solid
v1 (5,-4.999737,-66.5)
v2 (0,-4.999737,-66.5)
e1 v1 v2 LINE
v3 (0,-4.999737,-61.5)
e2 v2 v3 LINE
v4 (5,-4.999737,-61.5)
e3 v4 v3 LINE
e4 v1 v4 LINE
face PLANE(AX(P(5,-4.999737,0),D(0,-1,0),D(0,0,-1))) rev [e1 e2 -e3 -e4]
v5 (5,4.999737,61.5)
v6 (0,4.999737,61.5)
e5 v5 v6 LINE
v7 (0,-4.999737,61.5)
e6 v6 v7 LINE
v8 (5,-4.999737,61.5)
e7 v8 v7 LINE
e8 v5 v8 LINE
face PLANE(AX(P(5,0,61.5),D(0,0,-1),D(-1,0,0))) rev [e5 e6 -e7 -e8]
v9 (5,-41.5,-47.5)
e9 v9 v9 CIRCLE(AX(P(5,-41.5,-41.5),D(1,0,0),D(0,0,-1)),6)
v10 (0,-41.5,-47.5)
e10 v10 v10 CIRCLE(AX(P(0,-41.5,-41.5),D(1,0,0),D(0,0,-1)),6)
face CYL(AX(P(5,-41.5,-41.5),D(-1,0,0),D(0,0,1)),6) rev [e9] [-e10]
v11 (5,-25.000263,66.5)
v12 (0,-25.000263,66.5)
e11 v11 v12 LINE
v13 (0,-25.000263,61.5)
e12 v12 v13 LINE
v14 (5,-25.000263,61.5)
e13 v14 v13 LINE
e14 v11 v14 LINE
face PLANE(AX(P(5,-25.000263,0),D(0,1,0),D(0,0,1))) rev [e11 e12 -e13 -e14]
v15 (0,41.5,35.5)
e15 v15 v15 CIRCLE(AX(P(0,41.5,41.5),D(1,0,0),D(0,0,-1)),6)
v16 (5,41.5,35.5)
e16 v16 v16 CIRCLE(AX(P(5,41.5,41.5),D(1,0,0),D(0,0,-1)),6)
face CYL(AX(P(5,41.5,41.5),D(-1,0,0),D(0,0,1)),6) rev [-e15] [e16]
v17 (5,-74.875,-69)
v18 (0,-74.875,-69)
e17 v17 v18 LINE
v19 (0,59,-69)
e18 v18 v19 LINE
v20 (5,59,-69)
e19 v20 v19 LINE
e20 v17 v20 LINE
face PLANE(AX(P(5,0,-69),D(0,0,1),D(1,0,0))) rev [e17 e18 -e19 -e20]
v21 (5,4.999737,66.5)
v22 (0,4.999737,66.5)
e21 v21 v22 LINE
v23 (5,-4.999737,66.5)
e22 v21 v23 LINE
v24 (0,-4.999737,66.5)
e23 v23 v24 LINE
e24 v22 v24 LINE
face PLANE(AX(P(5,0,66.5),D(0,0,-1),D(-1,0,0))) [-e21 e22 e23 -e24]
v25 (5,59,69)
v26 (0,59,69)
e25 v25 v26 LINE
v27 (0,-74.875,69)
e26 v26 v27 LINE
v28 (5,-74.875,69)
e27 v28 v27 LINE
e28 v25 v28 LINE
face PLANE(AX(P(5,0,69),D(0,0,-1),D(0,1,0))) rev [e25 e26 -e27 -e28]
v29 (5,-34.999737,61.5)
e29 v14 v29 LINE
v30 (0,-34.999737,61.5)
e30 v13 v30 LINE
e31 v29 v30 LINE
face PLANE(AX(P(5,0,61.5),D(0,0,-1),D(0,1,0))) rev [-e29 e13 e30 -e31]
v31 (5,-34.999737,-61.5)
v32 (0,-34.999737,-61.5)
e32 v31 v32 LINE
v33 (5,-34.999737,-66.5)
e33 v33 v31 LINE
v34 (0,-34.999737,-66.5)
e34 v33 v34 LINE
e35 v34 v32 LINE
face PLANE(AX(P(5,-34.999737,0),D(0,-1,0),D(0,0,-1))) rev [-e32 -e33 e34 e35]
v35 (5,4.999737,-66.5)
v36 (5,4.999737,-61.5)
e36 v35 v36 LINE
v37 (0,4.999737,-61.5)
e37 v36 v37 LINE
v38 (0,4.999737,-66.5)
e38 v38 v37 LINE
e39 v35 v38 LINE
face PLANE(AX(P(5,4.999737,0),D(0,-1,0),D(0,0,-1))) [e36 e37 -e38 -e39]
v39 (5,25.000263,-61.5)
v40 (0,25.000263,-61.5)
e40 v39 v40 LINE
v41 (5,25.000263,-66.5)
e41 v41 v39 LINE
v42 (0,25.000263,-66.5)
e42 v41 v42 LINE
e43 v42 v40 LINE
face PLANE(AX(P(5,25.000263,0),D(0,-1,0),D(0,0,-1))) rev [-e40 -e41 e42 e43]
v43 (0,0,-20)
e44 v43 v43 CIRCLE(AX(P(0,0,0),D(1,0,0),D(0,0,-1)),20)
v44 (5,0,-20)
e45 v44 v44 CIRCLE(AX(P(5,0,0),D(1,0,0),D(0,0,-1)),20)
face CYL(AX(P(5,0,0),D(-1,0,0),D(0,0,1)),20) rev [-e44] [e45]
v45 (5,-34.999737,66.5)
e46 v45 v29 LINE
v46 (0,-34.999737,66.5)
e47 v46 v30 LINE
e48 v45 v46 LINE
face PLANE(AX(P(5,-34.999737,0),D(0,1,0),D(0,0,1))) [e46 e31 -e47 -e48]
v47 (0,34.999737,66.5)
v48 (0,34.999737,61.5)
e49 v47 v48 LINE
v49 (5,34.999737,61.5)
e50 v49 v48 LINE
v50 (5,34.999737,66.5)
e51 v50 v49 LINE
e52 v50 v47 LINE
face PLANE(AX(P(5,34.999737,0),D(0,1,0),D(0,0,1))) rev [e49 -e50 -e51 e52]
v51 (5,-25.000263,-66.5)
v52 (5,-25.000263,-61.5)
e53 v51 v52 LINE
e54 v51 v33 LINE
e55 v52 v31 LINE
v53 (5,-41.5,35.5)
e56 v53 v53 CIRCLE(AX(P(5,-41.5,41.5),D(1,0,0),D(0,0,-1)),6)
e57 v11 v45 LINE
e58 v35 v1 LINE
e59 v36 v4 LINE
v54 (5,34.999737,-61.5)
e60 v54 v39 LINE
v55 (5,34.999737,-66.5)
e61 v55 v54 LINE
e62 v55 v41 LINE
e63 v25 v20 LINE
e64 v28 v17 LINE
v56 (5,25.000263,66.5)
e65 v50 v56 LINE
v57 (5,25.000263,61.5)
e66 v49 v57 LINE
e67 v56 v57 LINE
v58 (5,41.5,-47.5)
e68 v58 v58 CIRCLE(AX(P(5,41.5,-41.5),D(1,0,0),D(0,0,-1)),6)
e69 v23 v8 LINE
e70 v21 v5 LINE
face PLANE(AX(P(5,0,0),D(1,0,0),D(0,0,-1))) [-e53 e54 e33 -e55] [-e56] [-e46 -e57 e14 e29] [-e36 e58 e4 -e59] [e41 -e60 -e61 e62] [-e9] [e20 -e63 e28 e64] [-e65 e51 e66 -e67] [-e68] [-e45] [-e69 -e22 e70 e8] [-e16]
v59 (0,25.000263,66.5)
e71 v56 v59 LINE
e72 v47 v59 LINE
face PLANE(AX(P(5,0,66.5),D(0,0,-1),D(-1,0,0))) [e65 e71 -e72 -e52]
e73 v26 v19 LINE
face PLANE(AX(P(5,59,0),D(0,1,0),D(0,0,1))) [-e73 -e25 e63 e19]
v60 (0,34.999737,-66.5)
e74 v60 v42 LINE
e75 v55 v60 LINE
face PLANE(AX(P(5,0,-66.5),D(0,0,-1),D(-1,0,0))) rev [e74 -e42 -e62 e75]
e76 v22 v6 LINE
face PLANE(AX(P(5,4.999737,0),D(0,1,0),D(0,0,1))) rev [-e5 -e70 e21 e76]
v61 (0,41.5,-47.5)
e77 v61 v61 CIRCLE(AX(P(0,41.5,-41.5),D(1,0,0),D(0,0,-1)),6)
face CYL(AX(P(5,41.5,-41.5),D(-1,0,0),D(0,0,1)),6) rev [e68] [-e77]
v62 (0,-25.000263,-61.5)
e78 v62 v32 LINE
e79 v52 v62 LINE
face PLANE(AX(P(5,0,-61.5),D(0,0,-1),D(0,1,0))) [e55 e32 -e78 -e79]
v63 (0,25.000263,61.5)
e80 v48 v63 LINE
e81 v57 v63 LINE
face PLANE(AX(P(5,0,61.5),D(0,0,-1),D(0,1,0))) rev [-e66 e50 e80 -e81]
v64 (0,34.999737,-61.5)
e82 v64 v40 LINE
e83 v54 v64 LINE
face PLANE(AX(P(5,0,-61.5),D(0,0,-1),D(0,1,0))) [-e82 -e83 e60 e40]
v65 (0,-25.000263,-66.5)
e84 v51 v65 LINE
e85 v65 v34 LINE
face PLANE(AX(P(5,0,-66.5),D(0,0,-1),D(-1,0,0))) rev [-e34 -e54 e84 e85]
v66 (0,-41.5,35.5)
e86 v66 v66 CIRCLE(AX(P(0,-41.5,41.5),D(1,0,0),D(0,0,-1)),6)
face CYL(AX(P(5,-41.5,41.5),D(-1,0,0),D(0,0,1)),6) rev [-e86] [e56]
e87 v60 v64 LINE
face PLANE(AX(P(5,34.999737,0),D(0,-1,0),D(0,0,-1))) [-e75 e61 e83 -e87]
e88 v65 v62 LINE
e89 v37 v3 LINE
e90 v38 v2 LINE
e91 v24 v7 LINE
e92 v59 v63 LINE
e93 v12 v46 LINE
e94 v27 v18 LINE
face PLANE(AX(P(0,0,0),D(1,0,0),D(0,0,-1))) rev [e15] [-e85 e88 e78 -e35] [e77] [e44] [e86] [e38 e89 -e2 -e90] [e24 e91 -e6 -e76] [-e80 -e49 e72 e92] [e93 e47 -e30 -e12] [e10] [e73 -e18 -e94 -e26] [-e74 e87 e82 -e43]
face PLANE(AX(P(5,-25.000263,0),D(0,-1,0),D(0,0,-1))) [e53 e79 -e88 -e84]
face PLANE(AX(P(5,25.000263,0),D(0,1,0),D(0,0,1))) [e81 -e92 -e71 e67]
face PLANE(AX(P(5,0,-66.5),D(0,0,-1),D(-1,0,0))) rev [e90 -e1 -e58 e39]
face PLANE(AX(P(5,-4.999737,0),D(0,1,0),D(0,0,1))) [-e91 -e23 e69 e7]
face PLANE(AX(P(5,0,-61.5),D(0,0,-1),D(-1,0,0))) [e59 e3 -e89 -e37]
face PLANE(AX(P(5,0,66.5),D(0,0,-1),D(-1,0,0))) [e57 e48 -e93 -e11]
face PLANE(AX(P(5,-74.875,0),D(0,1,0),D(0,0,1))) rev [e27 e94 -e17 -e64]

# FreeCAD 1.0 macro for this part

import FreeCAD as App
import Part
import Sketcher

V = App.Vector
Q = App.Units.Quantity


def add_polygon(sketch, points):
    """Adds a closed chain of lines whose ends are joined by coincident constraints."""
    first, n = sketch.GeometryCount, len(points)
    for a, b in zip(points, points[1:] + points[:1]):
        sketch.addGeometry(Part.LineSegment(App.Vector(*a, 0), App.Vector(*b, 0)), False)
    for i in range(n):
        sketch.addConstraint(Sketcher.Constraint("Coincident", first + i, 2, first + (i + 1) % n, 1))

doc = App.newDocument("Part")
body = doc.addObject("PartDesign::Body", "Body")

# Sketch on YZ plane
sketch1 = body.newObject("Sketcher::SketchObject", "Sketch")
sketch1.AttachmentSupport = (doc.getObject("YZ_Plane"), [""])
sketch1.MapMode = "FlatFace"
add_polygon(sketch1, [(59, -69), (59, 69), (-75, 69), (-75, -69)])  # lines 0-3
sketch1.addGeometry(Part.Circle(V(-42, -42, 0), V(0, 0, 1), 6), False)  # 4
add_polygon(sketch1, [(-35, -62), (-25, -62), (-25, -66), (-35, -66)])  # lines 5-8
sketch1.addGeometry(Part.Circle(V(-42, 42, 0), V(0, 0, 1), 6), False)  # 9
add_polygon(sketch1, [(-35, 66), (-25, 66), (-25, 62), (-35, 62)])  # lines 10-13
add_polygon(sketch1, [(-5, -62), (5, -62), (5, -66), (-5, -66)])  # lines 14-17
add_polygon(sketch1, [(25, -62), (35, -62), (35, -66), (25, -66)])  # lines 18-21
sketch1.addGeometry(Part.Circle(V(42, -42, 0), V(0, 0, 1), 6), False)  # 22
sketch1.addGeometry(Part.Circle(V(0, 0, 0), V(0, 0, 1), 20), False)  # 23
add_polygon(sketch1, [(-5, 66), (5, 66), (5, 62), (-5, 62)])  # lines 24-27
add_polygon(sketch1, [(25, 66), (35, 66), (35, 62), (25, 62)])  # lines 28-31
sketch1.addGeometry(Part.Circle(V(42, 42, 0), V(0, 0, 1), 6), False)  # 32
sketch1.addConstraint(Sketcher.Constraint("Vertical", 0))
sketch1.addConstraint(Sketcher.Constraint("Horizontal", 1))
sketch1.addConstraint(Sketcher.Constraint("Vertical", 2))
sketch1.addConstraint(Sketcher.Constraint("Horizontal", 3))
sketch1.addConstraint(Sketcher.Constraint("Horizontal", 5))
sketch1.addConstraint(Sketcher.Constraint("Vertical", 6))
sketch1.addConstraint(Sketcher.Constraint("Horizontal", 7))
sketch1.addConstraint(Sketcher.Constraint("Vertical", 8))
sketch1.addConstraint(Sketcher.Constraint("Horizontal", 10))
sketch1.addConstraint(Sketcher.Constraint("Vertical", 11))
sketch1.addConstraint(Sketcher.Constraint("Horizontal", 12))
sketch1.addConstraint(Sketcher.Constraint("Vertical", 13))
sketch1.addConstraint(Sketcher.Constraint("Horizontal", 14))
sketch1.addConstraint(Sketcher.Constraint("Vertical", 15))
sketch1.addConstraint(Sketcher.Constraint("Horizontal", 16))
sketch1.addConstraint(Sketcher.Constraint("Vertical", 17))
sketch1.addConstraint(Sketcher.Constraint("Horizontal", 18))
sketch1.addConstraint(Sketcher.Constraint("Vertical", 19))
sketch1.addConstraint(Sketcher.Constraint("Horizontal", 20))
sketch1.addConstraint(Sketcher.Constraint("Vertical", 21))
sketch1.addConstraint(Sketcher.Constraint("Horizontal", 24))
sketch1.addConstraint(Sketcher.Constraint("Vertical", 25))
sketch1.addConstraint(Sketcher.Constraint("Horizontal", 26))
sketch1.addConstraint(Sketcher.Constraint("Vertical", 27))
sketch1.addConstraint(Sketcher.Constraint("Horizontal", 28))
sketch1.addConstraint(Sketcher.Constraint("Vertical", 29))
sketch1.addConstraint(Sketcher.Constraint("Horizontal", 30))
sketch1.addConstraint(Sketcher.Constraint("Vertical", 31))
sketch1.addConstraint(Sketcher.Constraint("Coincident", 23, 3, -1, 1))
sketch1.addConstraint(Sketcher.Constraint("Equal", 4, 9))
sketch1.addConstraint(Sketcher.Constraint("Equal", 9, 22))
sketch1.addConstraint(Sketcher.Constraint("Equal", 22, 32))
sketch1.addConstraint(Sketcher.Constraint("Symmetric", 9, 3, 22, 3, -1, 1))
sketch1.addConstraint(Sketcher.Constraint("Symmetric", 4, 3, 32, 3, -1, 1))
sketch1.addConstraint(Sketcher.Constraint("Symmetric", 12, 2, 18, 2, -1, 1))
sketch1.addConstraint(Sketcher.Constraint("Symmetric", 10, 2, 20, 2, -1, 1))
sketch1.addConstraint(Sketcher.Constraint("Symmetric", 16, 2, 24, 2, -1, 1))
sketch1.addConstraint(Sketcher.Constraint("Symmetric", 14, 2, 26, 2, -1, 1))
sketch1.addConstraint(Sketcher.Constraint("Symmetric", 7, 2, 28, 2, -1, 1))
sketch1.addConstraint(Sketcher.Constraint("Symmetric", 5, 2, 30, 2, -1, 1))
sketch1.addConstraint(Sketcher.Constraint("Symmetric", 4, 3, 22, 3, -2))
sketch1.addConstraint(Sketcher.Constraint("Symmetric", 8, 2, 18, 2, -2))
sketch1.addConstraint(Sketcher.Constraint("Symmetric", 6, 2, 20, 2, -2))
sketch1.addConstraint(Sketcher.Constraint("Horizontal", 8, 2, 14, 2))
sketch1.addConstraint(Sketcher.Constraint("Horizontal", 7, 2, 15, 2))
sketch1.addConstraint(Sketcher.Constraint("Vertical", 15, 2, 24, 2))
sketch1.addConstraint(Sketcher.Constraint("Equal", 12, 14))
sketch1.addConstraint(Sketcher.Constraint("Diameter", 4, Q("12 mm")))
sketch1.addConstraint(Sketcher.Constraint("Diameter", 23, Q("40 mm")))
sketch1.addConstraint(Sketcher.Constraint("DistanceY", 0, 1, 0, 2, Q("138 mm")))
sketch1.addConstraint(Sketcher.Constraint("DistanceY", 6, 2, 6, 1, Q("5 mm")))
sketch1.addConstraint(Sketcher.Constraint("DistanceX", -1, 1, 0, 2, Q("59 mm")))
sketch1.addConstraint(Sketcher.Constraint("DistanceY", -1, 1, 0, 2, Q("69 mm")))
sketch1.addConstraint(Sketcher.Constraint("DistanceY", 4, 3, 9, 3, Q("83 mm")))
sketch1.addConstraint(Sketcher.Constraint("DistanceX", 4, 3, 22, 3, Q("83 mm")))
sketch1.addConstraint(Sketcher.Constraint("DistanceY", 5, 2, 4, 3, Q("20 mm")))
sketch1.addConstraint(Sketcher.Constraint("DistanceX", 5, 2, 14, 2, Q("30 mm")))
sketch1.addConstraint(Sketcher.Constraint("DistanceX", 1, 2, 1, 1, Q("133.875 mm")))
sketch1.addConstraint(Sketcher.Constraint("DistanceX", 5, 1, 5, 2, Q("9.999475 mm")))
pad1 = body.newObject("PartDesign::Pad", "Pad")
pad1.Profile = sketch1
pad1.Length = 5

doc.recompute()
